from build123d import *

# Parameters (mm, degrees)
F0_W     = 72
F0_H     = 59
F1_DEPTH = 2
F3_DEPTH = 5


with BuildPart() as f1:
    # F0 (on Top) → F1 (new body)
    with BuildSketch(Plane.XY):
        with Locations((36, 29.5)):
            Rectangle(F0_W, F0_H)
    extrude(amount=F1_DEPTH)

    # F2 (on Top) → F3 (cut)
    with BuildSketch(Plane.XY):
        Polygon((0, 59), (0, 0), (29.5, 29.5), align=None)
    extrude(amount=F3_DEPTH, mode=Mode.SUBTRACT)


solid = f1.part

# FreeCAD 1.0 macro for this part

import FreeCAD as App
import Part
import Sketcher
from FreeCAD import Vector


def add_polygon(sketch, points):
    """Adds a closed chain of lines whose ends are joined by coincident constraints."""
    first, n = sketch.GeometryCount, len(points)
    for a, b in zip(points, points[1:] + points[:1]):
        sketch.addGeometry(Part.LineSegment(App.Vector(*a, 0), App.Vector(*b, 0)), False)
    for i in range(n):
        sketch.addConstraint(Sketcher.Constraint("Coincident", first + i, 2, first + (i + 1) % n, 1))

doc = App.newDocument("Part")
body = doc.addObject("PartDesign::Body", "Body")

# Sketch on XY plane
sketch1 = body.newObject("Sketcher::SketchObject", "Sketch")
sketch1.AttachmentSupport = (doc.getObject("XY_Plane"), [""])
sketch1.MapMode = "FlatFace"
add_polygon(sketch1, [(0, 59), (0, 0), (72, 0), (72, 59)])  # lines 0-3
sketch1.addConstraint([
    Sketcher.Constraint("Vertical", 0),
    Sketcher.Constraint("Horizontal", 1),
    Sketcher.Constraint("Vertical", 2),
    Sketcher.Constraint("Horizontal", 3),
    Sketcher.Constraint("Coincident", 0, 2, -1, 1),
    Sketcher.Constraint("DistanceX", 1, 1, 1, 2, 72.0),
    Sketcher.Constraint("DistanceY", 0, 2, 0, 1, 59.0),
])
pad1 = body.newObject("PartDesign::Pad", "Pad")
pad1.Profile = sketch1
pad1.Length = 2

# Sketch on XY plane
sketch2 = body.newObject("Sketcher::SketchObject", "Sketch001")
sketch2.AttachmentSupport = (doc.getObject("XY_Plane"), [""])
sketch2.MapMode = "FlatFace"
add_polygon(sketch2, [(0, 59), (0, 0), (29.5, 29.5)])  # lines 0-2
sketch2.addConstraint([
    Sketcher.Constraint("Vertical", 0),
    Sketcher.Constraint("Coincident", 0, 2, -1, 1),
    Sketcher.Constraint("Perpendicular", 1, 2),
    Sketcher.Constraint("Equal", 1, 2),
    Sketcher.Constraint("DistanceY", 0, 2, 0, 1, 59.0),
])
pocket1 = body.newObject("PartDesign::Pocket", "Pocket")
pocket1.Profile = sketch2
pocket1.Length = 5
pocket1.Reversed = True

doc.recompute()
